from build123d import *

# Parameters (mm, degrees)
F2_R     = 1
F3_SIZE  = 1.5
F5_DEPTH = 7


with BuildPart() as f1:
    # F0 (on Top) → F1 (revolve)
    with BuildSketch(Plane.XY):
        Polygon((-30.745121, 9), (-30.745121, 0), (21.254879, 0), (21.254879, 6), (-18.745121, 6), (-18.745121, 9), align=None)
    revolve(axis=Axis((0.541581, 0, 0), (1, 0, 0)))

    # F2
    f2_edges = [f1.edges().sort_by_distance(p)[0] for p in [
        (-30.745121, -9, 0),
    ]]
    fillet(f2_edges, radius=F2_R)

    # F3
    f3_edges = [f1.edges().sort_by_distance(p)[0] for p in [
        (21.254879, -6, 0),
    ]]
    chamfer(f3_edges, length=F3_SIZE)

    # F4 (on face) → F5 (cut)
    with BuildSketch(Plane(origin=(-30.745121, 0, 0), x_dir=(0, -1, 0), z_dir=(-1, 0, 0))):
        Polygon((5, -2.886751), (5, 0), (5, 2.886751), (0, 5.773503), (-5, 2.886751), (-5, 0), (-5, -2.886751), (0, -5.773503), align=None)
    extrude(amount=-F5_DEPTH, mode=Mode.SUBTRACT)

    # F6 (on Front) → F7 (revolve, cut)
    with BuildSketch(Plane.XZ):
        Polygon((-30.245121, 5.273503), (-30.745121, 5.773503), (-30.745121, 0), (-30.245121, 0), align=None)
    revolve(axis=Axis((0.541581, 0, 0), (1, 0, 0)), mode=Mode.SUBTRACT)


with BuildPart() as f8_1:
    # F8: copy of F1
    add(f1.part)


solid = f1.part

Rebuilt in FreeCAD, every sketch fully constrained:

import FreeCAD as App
import Part
import Sketcher

V = App.Vector
Q = App.Units.Quantity


def edges_at(feature, points):
    """Names of the edges that pass closest to the given points."""
    edges = feature.Shape.Edges
    near = lambda p: min(range(len(edges)), key=lambda i: edges[i].distToShape(Part.Vertex(*p))[0])
    return sorted({f"Edge{near(p) + 1}" for p in points})


def add_polygon(sketch, points):
    """Adds a closed chain of lines whose ends are joined by coincident constraints."""
    first, n = sketch.GeometryCount, len(points)
    for a, b in zip(points, points[1:] + points[:1]):
        sketch.addGeometry(Part.LineSegment(App.Vector(*a, 0), App.Vector(*b, 0)), False)
    for i in range(n):
        sketch.addConstraint(Sketcher.Constraint("Coincident", first + i, 2, first + (i + 1) % n, 1))

doc = App.newDocument("Part")
body = doc.addObject("PartDesign::Body", "Body")

# Sketch on XY plane
sketch1 = body.newObject("Sketcher::SketchObject", "Sketch")
sketch1.AttachmentSupport = (doc.getObject("XY_Plane"), [""])
sketch1.MapMode = "FlatFace"
add_polygon(sketch1, [(-30.7, 9), (-30.7, 0), (21.3, 0), (21.3, 6), (-18.7, 6), (-18.7, 9)])  # lines 0-5
sketch1.addConstraint(Sketcher.Constraint("Vertical", 0))
sketch1.addConstraint(Sketcher.Constraint("Horizontal", 1))
sketch1.addConstraint(Sketcher.Constraint("Vertical", 2))
sketch1.addConstraint(Sketcher.Constraint("Horizontal", 3))
sketch1.addConstraint(Sketcher.Constraint("Vertical", 4))
sketch1.addConstraint(Sketcher.Constraint("Horizontal", 5))
sketch1.addConstraint(Sketcher.Constraint("PointOnObject", 0, 2, -1))
sketch1.addConstraint(Sketcher.Constraint("DistanceX", 1, 1, 1, 2, 52.0))
sketch1.addConstraint(Sketcher.Constraint("DistanceX", 3, 2, 3, 1, 40.0))
sketch1.addConstraint(Sketcher.Constraint("DistanceY", 0, 2, 0, 1, 9.0))
sketch1.addConstraint(Sketcher.Constraint("DistanceY", 2, 1, 2, 2, 6.0))
sketch1.addConstraint(Sketcher.Constraint("DistanceX", 0, 2, -1, 1, 30.745121))
revolution = body.newObject("PartDesign::Revolution", "Revolution")
revolution.Profile = sketch1
revolution.ReferenceAxis = (sketch1, ["H_Axis"])
revolution.Angle = 360
doc.recompute()

fillet = body.newObject("PartDesign::Fillet", "Fillet")
fillet.Base = (revolution, edges_at(revolution, [(-30.745, -9, 0)]))
fillet.Radius = 1
doc.recompute()

chamfer = body.newObject("PartDesign::Chamfer", "Chamfer")
chamfer.Base = (fillet, edges_at(fillet, [(21.255, -6, 0)]))
chamfer.Size = 1.5

# Sketch on YZ plane
sketch2 = body.newObject("Sketcher::SketchObject", "Sketch001")
sketch2.AttachmentSupport = (doc.getObject("YZ_Plane"), [""])
sketch2.MapMode = "FlatFace"
sketch2.AttachmentOffset = App.Placement(V(0, 0, -30.745121), App.Rotation())
add_polygon(sketch2, [(-5, -3), (-5, 3), (0, 6), (5, 3), (5, -3), (0, -6)])  # lines 0-5
sketch2.addConstraint(Sketcher.Constraint("Vertical", 0))
sketch2.addConstraint(Sketcher.Constraint("Vertical", 3))
sketch2.addConstraint(Sketcher.Constraint("Symmetric", 0, 2, 3, 2, -1, 1))
sketch2.addConstraint(Sketcher.Constraint("Symmetric", 1, 2, 4, 2, -1, 1))
sketch2.addConstraint(Sketcher.Constraint("PointOnObject", 1, 2, -2))
sketch2.addConstraint(Sketcher.Constraint("Parallel", 2, 5))
sketch2.addConstraint(Sketcher.Constraint("Horizontal", 0, 2, 2, 2))
sketch2.addConstraint(Sketcher.Constraint("Angle", 1, Q("30.000006 deg")))
sketch2.addConstraint(Sketcher.Constraint("DistanceX", 0, 2, -1, 1, 5.0))
sketch2.addConstraint(Sketcher.Constraint("DistanceY", 0, 1, 0, 2, 5.773502))
pocket1 = body.newObject("PartDesign::Pocket", "Pocket")
pocket1.Profile = sketch2
pocket1.Length = 7
pocket1.Reversed = True

# Sketch on XZ plane
sketch3 = body.newObject("Sketcher::SketchObject", "Sketch002")
sketch3.AttachmentSupport = (doc.getObject("XZ_Plane"), [""])
sketch3.MapMode = "FlatFace"
add_polygon(sketch3, [(-30.2, 5.3), (-30.7, 5.8), (-30.7, 0), (-30.2, 0)])  # lines 0-3
sketch3.addConstraint(Sketcher.Constraint("Vertical", 1))
sketch3.addConstraint(Sketcher.Constraint("Horizontal", 2))
sketch3.addConstraint(Sketcher.Constraint("Vertical", 3))
sketch3.addConstraint(Sketcher.Constraint("PointOnObject", 1, 2, -1))
sketch3.addConstraint(Sketcher.Constraint("Angle", 0, Q("135 deg")))
sketch3.addConstraint(Sketcher.Constraint("DistanceX", 2, 1, 2, 2, 0.5))
sketch3.addConstraint(Sketcher.Constraint("DistanceY", 1, 2, 1, 1, 5.773503))
sketch3.addConstraint(Sketcher.Constraint("DistanceX", 0, 2, -1, 1, 30.745121))
groove = body.newObject("PartDesign::Groove", "Groove")
groove.Profile = sketch3
groove.ReferenceAxis = (sketch3, ["H_Axis"])
groove.Angle = 360
body2 = doc.addObject("PartDesign::Body", "Body001")
doc.recompute()

body2.BaseFeature = body
doc.recompute()
body.Visibility = False

doc.recompute()
